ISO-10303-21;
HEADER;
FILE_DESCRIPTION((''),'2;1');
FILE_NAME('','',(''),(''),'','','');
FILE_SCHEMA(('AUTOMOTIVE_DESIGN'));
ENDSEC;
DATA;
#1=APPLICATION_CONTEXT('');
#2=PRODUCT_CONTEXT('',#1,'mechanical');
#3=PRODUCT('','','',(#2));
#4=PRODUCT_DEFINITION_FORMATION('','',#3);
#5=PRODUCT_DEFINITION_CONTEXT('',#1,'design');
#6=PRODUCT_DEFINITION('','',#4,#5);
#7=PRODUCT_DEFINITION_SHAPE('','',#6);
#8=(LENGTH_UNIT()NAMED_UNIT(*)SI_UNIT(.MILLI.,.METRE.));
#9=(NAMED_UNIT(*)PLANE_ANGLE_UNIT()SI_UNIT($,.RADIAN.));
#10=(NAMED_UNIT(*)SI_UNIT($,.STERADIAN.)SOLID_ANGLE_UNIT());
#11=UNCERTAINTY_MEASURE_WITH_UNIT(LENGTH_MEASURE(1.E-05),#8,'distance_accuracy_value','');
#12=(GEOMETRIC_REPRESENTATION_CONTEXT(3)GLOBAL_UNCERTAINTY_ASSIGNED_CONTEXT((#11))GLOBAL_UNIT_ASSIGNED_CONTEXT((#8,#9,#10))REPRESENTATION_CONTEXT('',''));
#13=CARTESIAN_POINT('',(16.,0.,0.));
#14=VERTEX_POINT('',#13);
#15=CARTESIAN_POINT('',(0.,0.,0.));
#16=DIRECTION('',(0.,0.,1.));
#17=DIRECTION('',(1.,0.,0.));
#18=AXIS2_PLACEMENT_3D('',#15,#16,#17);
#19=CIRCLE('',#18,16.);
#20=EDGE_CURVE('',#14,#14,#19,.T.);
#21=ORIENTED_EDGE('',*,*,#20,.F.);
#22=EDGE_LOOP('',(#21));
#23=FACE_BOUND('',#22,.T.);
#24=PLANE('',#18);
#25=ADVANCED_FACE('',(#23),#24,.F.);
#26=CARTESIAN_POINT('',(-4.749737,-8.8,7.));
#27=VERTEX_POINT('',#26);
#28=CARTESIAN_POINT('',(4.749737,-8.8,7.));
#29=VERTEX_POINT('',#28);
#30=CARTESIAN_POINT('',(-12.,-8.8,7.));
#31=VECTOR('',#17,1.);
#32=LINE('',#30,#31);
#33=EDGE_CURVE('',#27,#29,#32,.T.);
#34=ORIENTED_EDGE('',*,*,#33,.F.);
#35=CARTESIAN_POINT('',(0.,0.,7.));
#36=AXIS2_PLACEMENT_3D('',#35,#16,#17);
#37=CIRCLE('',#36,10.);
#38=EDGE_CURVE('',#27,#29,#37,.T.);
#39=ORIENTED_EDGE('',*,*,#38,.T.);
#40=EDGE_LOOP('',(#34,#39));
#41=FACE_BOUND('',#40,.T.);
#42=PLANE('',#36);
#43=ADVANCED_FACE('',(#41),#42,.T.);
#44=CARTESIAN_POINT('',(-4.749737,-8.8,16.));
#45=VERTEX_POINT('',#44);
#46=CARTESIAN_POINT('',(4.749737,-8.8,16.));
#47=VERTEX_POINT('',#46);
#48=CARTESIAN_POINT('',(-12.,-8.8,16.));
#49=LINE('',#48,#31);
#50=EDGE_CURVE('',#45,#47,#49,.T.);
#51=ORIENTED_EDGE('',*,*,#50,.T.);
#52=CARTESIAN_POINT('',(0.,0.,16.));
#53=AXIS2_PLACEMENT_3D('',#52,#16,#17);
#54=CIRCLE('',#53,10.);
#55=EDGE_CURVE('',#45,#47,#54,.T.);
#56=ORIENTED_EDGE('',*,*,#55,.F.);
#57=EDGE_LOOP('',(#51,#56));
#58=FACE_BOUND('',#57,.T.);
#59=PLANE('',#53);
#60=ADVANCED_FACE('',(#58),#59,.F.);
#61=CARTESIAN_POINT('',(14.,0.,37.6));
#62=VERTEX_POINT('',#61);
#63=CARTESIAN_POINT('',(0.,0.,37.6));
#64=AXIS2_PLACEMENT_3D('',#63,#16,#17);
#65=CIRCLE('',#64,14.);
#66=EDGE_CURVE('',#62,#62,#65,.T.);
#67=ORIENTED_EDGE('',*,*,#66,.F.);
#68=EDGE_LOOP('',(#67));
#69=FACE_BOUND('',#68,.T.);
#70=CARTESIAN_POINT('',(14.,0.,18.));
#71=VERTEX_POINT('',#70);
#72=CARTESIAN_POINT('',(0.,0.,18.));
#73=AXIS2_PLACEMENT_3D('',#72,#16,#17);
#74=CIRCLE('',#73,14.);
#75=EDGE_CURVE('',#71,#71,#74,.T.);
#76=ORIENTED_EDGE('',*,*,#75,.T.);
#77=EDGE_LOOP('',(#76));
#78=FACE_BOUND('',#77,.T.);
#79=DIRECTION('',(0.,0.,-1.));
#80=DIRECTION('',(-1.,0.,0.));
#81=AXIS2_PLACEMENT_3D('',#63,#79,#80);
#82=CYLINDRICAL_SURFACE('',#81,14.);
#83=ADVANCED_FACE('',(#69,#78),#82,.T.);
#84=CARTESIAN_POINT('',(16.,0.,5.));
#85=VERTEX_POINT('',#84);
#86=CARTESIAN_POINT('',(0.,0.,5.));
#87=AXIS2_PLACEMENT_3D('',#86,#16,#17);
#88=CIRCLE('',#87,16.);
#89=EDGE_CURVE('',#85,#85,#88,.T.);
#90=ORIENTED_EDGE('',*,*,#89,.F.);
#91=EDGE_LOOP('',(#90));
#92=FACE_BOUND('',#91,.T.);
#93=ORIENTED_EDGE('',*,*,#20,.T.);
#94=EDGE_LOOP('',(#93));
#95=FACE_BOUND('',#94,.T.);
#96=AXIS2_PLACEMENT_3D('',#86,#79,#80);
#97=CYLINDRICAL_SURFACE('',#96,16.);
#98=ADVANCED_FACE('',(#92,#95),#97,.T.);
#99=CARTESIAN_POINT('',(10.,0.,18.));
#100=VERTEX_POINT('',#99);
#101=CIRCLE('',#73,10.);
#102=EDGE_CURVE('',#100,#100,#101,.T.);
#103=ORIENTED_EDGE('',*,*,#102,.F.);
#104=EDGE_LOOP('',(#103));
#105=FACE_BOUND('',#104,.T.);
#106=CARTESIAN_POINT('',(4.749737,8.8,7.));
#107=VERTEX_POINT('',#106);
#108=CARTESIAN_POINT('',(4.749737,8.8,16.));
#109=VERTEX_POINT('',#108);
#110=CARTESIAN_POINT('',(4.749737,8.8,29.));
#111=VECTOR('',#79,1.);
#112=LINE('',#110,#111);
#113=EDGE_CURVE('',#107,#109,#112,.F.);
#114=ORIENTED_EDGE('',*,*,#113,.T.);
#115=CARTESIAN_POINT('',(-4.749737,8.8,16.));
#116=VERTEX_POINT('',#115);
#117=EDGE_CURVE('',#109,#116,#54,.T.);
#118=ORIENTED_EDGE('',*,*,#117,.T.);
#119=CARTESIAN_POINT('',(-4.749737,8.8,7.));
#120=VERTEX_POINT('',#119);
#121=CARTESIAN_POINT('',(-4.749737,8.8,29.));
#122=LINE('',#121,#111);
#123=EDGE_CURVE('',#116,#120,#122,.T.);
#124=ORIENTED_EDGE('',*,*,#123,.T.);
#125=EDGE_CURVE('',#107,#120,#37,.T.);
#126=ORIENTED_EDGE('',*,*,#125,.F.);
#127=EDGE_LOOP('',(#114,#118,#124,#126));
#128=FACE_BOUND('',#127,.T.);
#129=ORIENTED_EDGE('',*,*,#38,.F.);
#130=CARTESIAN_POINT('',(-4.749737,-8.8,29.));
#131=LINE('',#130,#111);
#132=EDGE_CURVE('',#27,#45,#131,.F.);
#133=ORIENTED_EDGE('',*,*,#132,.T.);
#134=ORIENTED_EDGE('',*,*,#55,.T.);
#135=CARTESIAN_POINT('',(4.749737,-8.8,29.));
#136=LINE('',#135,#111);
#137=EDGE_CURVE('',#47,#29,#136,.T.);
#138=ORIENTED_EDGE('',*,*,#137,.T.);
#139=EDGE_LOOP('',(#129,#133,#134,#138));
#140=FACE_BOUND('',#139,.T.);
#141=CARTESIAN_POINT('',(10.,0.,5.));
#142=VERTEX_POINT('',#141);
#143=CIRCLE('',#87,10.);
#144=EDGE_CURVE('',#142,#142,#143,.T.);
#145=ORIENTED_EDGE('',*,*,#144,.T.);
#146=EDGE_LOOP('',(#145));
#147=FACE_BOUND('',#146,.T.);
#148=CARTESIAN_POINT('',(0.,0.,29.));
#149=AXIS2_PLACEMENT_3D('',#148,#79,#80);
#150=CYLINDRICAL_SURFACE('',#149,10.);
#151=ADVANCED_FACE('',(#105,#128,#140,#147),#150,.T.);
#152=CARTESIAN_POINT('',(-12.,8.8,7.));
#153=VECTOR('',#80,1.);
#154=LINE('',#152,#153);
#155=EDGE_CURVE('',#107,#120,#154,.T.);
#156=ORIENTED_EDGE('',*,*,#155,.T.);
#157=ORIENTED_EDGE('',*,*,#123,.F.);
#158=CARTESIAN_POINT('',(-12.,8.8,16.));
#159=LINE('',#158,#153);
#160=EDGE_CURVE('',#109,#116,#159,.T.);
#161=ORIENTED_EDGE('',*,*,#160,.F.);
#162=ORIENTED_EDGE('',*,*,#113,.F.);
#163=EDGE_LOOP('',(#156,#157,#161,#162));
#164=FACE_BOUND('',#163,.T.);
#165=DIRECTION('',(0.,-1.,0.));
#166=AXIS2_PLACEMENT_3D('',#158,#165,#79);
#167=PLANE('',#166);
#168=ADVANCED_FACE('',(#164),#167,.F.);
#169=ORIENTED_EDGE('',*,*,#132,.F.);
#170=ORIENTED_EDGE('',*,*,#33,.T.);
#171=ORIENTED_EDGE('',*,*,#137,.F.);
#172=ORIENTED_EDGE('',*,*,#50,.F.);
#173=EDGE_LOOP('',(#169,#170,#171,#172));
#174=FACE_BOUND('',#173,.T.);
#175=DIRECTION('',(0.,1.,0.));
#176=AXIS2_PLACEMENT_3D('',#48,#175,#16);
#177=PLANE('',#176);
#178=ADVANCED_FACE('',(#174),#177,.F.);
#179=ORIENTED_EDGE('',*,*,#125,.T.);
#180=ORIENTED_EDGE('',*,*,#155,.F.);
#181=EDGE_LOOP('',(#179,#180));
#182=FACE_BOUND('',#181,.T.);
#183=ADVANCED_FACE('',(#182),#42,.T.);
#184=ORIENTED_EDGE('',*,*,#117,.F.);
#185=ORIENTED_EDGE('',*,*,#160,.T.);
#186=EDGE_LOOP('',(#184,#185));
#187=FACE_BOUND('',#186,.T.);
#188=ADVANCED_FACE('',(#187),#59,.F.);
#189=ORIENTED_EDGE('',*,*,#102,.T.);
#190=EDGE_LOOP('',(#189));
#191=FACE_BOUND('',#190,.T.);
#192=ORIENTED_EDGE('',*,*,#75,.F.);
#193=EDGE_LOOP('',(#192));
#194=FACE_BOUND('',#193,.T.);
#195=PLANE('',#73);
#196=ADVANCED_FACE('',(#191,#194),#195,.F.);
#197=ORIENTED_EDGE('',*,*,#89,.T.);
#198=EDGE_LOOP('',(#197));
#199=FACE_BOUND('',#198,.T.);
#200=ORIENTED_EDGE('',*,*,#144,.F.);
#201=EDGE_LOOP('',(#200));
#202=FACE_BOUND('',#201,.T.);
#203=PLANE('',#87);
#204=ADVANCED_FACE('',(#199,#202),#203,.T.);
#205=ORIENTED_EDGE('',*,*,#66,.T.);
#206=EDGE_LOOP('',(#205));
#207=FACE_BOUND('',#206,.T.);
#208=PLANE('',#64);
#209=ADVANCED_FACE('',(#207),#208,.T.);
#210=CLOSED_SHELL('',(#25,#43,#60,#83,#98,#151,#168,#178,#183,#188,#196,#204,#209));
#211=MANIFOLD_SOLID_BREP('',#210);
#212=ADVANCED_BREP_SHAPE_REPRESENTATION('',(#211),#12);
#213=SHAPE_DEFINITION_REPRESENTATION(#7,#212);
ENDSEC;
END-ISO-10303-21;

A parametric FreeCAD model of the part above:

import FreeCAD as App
import Part
import Sketcher

V = App.Vector

doc = App.newDocument("Part")
body = doc.addObject("PartDesign::Body", "Body")

sketch1 = body.newObject("Sketcher::SketchObject", "Sketch")
sketch1.AttachmentSupport = (doc.getObject("XY_Plane"), [""])
sketch1.MapMode = "FlatFace"
sketch1.addGeometry(Part.Circle(V(0, 0, 0), V(0, 0, 1), 16), False)
sketch1.addConstraint(Sketcher.Constraint("Coincident", 0, 3, -1, 1))
sketch1.addConstraint(Sketcher.Constraint("Diameter", 0, 32.0))
pad1 = body.newObject("PartDesign::Pad", "Pad")
pad1.Profile = sketch1
pad1.Length = 5

sketch2 = body.newObject("Sketcher::SketchObject", "Sketch001")
sketch2.AttachmentSupport = (doc.getObject("XY_Plane"), [""])
sketch2.MapMode = "FlatFace"
sketch2.AttachmentOffset = App.Placement(V(0, 0, 5), App.Rotation())
sketch2.addGeometry(Part.Circle(V(0, 0, 0), V(0, 0, 1), 10), False)
sketch2.addConstraint(Sketcher.Constraint("Coincident", 0, 3, -1, 1))
sketch2.addConstraint(Sketcher.Constraint("Diameter", 0, 20.0))
pad2 = body.newObject("PartDesign::Pad", "Pad001")
pad2.Profile = sketch2
pad2.Length = 24

sketch3 = body.newObject("Sketcher::SketchObject", "Sketch002")
sketch3.AttachmentSupport = (doc.getObject("XY_Plane"), [""])
sketch3.MapMode = "FlatFace"
sketch3.AttachmentOffset = App.Placement(V(0, 0, 7), App.Rotation())
sketch3.addGeometry(Part.LineSegment(V(-22.375, 22.375, 0), V(-22.375, -22.375, 0)), False)
sketch3.addGeometry(Part.LineSegment(V(-22.375, -22.375, 0), V(22.375, -22.375, 0)), False)
sketch3.addGeometry(Part.LineSegment(V(22.375, -22.375, 0), V(22.375, 22.375, 0)), False)
sketch3.addGeometry(Part.LineSegment(V(22.375, 22.375, 0), V(-22.375, 22.375, 0)), False)
sketch3.addGeometry(Part.LineSegment(V(12, -8.8, 0), V(-12, -8.8, 0)), False)
sketch3.addGeometry(Part.LineSegment(V(-12, -8.8, 0), V(-12, 8.8, 0)), False)
sketch3.addGeometry(Part.LineSegment(V(-12, 8.8, 0), V(12, 8.8, 0)), False)
sketch3.addGeometry(Part.LineSegment(V(12, 8.8, 0), V(12, -8.8, 0)), False)
sketch3.addConstraint(Sketcher.Constraint("Coincident", 0, 2, 1, 1))
sketch3.addConstraint(Sketcher.Constraint("Coincident", 1, 2, 2, 1))
sketch3.addConstraint(Sketcher.Constraint("Coincident", 2, 2, 3, 1))
sketch3.addConstraint(Sketcher.Constraint("Coincident", 3, 2, 0, 1))
sketch3.addConstraint(Sketcher.Constraint("Coincident", 4, 2, 5, 1))
sketch3.addConstraint(Sketcher.Constraint("Coincident", 5, 2, 6, 1))
sketch3.addConstraint(Sketcher.Constraint("Coincident", 6, 2, 7, 1))
sketch3.addConstraint(Sketcher.Constraint("Coincident", 7, 2, 4, 1))
sketch3.addConstraint(Sketcher.Constraint("Vertical", 0))
sketch3.addConstraint(Sketcher.Constraint("Horizontal", 1))
sketch3.addConstraint(Sketcher.Constraint("Vertical", 2))
sketch3.addConstraint(Sketcher.Constraint("Horizontal", 3))
sketch3.addConstraint(Sketcher.Constraint("Horizontal", 4))
sketch3.addConstraint(Sketcher.Constraint("Vertical", 5))
sketch3.addConstraint(Sketcher.Constraint("Horizontal", 6))
sketch3.addConstraint(Sketcher.Constraint("Vertical", 7))
sketch3.addConstraint(Sketcher.Constraint("Symmetric", 0, 2, 2, 2, -1, 1))
sketch3.addConstraint(Sketcher.Constraint("Symmetric", 4, 2, 6, 2, -1, 1))
sketch3.addConstraint(Sketcher.Constraint("Equal", 3, 0))
sketch3.addConstraint(Sketcher.Constraint("DistanceX", 4, 2, 4, 1, 24.0))
sketch3.addConstraint(Sketcher.Constraint("DistanceY", 5, 1, 5, 2, 17.6))
sketch3.addConstraint(Sketcher.Constraint("DistanceX", 1, 1, 1, 2, 44.75))
pocket1 = body.newObject("PartDesign::Pocket", "Pocket")
pocket1.Profile = sketch3
pocket1.Length = 9
pocket1.Reversed = True

sketch4 = body.newObject("Sketcher::SketchObject", "Sketch003")
sketch4.AttachmentSupport = (doc.getObject("XY_Plane"), [""])
sketch4.MapMode = "FlatFace"
sketch4.AttachmentOffset = App.Placement(V(0, 0, 18), App.Rotation())
sketch4.addGeometry(Part.Circle(V(0, 0, 0), V(0, 0, 1), 14), False)
sketch4.addConstraint(Sketcher.Constraint("Coincident", 0, 3, -1, 1))
sketch4.addConstraint(Sketcher.Constraint("Diameter", 0, 28.0))
pad3 = body.newObject("PartDesign::Pad", "Pad002")
pad3.Profile = sketch4
pad3.Length = 19.6

doc.recompute()
